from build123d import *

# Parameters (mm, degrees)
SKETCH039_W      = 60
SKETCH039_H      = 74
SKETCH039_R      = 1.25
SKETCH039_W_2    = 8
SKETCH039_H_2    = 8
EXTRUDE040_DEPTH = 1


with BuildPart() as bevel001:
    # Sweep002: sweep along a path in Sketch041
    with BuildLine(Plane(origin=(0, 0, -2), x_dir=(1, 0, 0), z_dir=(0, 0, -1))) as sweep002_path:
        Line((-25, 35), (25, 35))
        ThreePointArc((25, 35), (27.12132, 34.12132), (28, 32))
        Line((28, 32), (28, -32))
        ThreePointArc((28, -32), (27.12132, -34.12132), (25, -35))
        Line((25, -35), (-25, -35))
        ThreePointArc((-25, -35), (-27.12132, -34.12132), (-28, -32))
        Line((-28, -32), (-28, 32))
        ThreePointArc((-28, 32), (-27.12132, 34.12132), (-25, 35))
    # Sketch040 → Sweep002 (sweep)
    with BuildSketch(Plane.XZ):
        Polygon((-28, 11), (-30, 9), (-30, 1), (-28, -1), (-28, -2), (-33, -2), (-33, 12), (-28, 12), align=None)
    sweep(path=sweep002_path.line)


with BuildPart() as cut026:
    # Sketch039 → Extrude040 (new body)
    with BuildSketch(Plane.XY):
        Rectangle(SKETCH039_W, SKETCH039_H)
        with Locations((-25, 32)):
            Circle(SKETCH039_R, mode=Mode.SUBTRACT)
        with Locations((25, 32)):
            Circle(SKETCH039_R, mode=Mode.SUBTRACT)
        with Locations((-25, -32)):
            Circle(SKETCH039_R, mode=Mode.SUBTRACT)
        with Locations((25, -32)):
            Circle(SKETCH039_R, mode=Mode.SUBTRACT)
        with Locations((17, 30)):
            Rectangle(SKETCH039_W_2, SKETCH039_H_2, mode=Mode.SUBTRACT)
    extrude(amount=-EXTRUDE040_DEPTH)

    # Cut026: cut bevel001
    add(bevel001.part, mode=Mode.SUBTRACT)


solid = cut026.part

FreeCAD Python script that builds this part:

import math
import FreeCAD as App
import Part
import Sketcher


def add_polygon(sketch, points):
    """Adds a closed chain of lines whose ends are joined by coincident constraints."""
    first, n = sketch.GeometryCount, len(points)
    for a, b in zip(points, points[1:] + points[:1]):
        sketch.addGeometry(Part.LineSegment(App.Vector(*a, 0), App.Vector(*b, 0)), False)
    for i in range(n):
        sketch.addConstraint(Sketcher.Constraint("Coincident", first + i, 2, first + (i + 1) % n, 1))

doc = App.newDocument("Part")
params = doc.addObject("Spreadsheet::Sheet", "Params")
for row, (alias, value) in enumerate([
    ("sketch1_width", "5 mm"),
    ("sketch1_height", "1 mm"),
    ("sketch1_height2", "14 mm"),
    ("sketch1_height3", "8 mm"),
    ("sketch2_radius", "3.000001 mm"),
    ("sketch2_width", "50 mm"),
    ("sketch2_height", "64 mm"),
    ("sketch3_diameter", "2.5 mm"),
    ("sketch3_width", "60 mm"),
    ("sketch3_width2", "8 mm"),
    ("sketch3_height", "74 mm"),
    ("pad1_length", "1 mm"),
], start=1):
    params.set(f"A{row}", alias)
    params.set(f"B{row}", "=" + value)
    params.setAlias(f"B{row}", alias)

body = doc.addObject("PartDesign::Body", "Body")

# Sketch on XZ plane
sketch1 = doc.addObject("Sketcher::SketchObject", "Sketch")
body.addObject(sketch1)
sketch1.AttachmentSupport = (doc.XZ_Plane, [""])
sketch1.MapMode = "FlatFace"
add_polygon(sketch1, [(-30, 9), (-28, 11), (-28, 12), (-33, 12), (-33, -2), (-28, -2), (-28, -1), (-30, 1)])  # lines 0-7
sketch1.addConstraint(Sketcher.Constraint("Vertical", 1))
sketch1.addConstraint(Sketcher.Constraint("Horizontal", 2))
sketch1.addConstraint(Sketcher.Constraint("Vertical", 3))
sketch1.addConstraint(Sketcher.Constraint("Horizontal", 4))
sketch1.addConstraint(Sketcher.Constraint("Vertical", 5))
sketch1.addConstraint(Sketcher.Constraint("Vertical", 7))
sketch1.addConstraint(Sketcher.Constraint("Perpendicular", 0, 6))
sketch1.addConstraint(Sketcher.Constraint("Vertical", 1, 2, 4, 2))
sketch1.addConstraint(Sketcher.Constraint("Equal", 1, 5))
sketch1.addConstraint(Sketcher.Constraint("Equal", 0, 6))
sketch1.addConstraint(Sketcher.Constraint("DistanceX", 2, 2, 2, 1, 5.0))
sketch1.addConstraint(Sketcher.Constraint("DistanceY", 1, 1, 1, 2, 1.0))
sketch1.addConstraint(Sketcher.Constraint("DistanceY", 3, 2, 3, 1, 14.0))
sketch1.addConstraint(Sketcher.Constraint("DistanceY", 7, 1, 7, 2, 8.0))
sketch1.addConstraint(Sketcher.Constraint("DistanceX", 0, 2, -1, 1, 28.0))
sketch1.addConstraint(Sketcher.Constraint("DistanceY", -1, 1, 0, 2, 11.0))
sketch1.setExpression("Constraints[18]", "Params.sketch1_width")
sketch1.setExpression("Constraints[19]", "Params.sketch1_height")
sketch1.setExpression("Constraints[20]", "Params.sketch1_height2")
sketch1.setExpression("Constraints[21]", "Params.sketch1_height3")

# Sketch on XY plane
sketch2 = doc.addObject("Sketcher::SketchObject", "Sketch001")
body.addObject(sketch2)
sketch2.AttachmentSupport = (doc.XY_Plane, [""])
sketch2.MapMode = "FlatFace"
sketch2.AttachmentOffset = App.Placement(App.Vector(0, 0, -2), App.Rotation())
sketch2.addGeometry(Part.LineSegment(App.Vector(-25, -35, 0), App.Vector(25, -35, 0)), False)
sketch2.addGeometry(Part.ArcOfCircle(Part.Circle(App.Vector(25, -32, 0), App.Vector(0, 0, 1), 3), math.radians(-90), math.radians(0)), False)
sketch2.addGeometry(Part.LineSegment(App.Vector(28, -32, 0), App.Vector(28, 32, 0)), False)
sketch2.addGeometry(Part.ArcOfCircle(Part.Circle(App.Vector(25, 32, 0), App.Vector(0, 0, 1), 3), math.radians(0), math.radians(90)), False)
sketch2.addGeometry(Part.LineSegment(App.Vector(25, 35, 0), App.Vector(-25, 35, 0)), False)
sketch2.addGeometry(Part.ArcOfCircle(Part.Circle(App.Vector(-25, 32, 0), App.Vector(0, 0, 1), 3), math.radians(90), math.radians(180)), False)
sketch2.addGeometry(Part.LineSegment(App.Vector(-28, 32, 0), App.Vector(-28, -32, 0)), False)
sketch2.addGeometry(Part.ArcOfCircle(Part.Circle(App.Vector(-25, -32, 0), App.Vector(0, 0, 1), 3), math.radians(-180), math.radians(-90)), False)
sketch2.addConstraint(Sketcher.Constraint("Tangent", 0, 2, 1, 1))
sketch2.addConstraint(Sketcher.Constraint("Tangent", 1, 2, 2, 1))
sketch2.addConstraint(Sketcher.Constraint("Tangent", 2, 2, 3, 1))
sketch2.addConstraint(Sketcher.Constraint("Tangent", 3, 2, 4, 1))
sketch2.addConstraint(Sketcher.Constraint("Tangent", 4, 2, 5, 1))
sketch2.addConstraint(Sketcher.Constraint("Tangent", 5, 2, 6, 1))
sketch2.addConstraint(Sketcher.Constraint("Tangent", 6, 2, 7, 1))
sketch2.addConstraint(Sketcher.Constraint("Tangent", 7, 2, 0, 1))
sketch2.addConstraint(Sketcher.Constraint("Horizontal", 0))
sketch2.addConstraint(Sketcher.Constraint("Vertical", 2))
sketch2.addConstraint(Sketcher.Constraint("Horizontal", 4))
sketch2.addConstraint(Sketcher.Constraint("Vertical", 6))
sketch2.addConstraint(Sketcher.Constraint("Equal", 1, 3))
sketch2.addConstraint(Sketcher.Constraint("Equal", 3, 5))
sketch2.addConstraint(Sketcher.Constraint("Equal", 5, 7))
sketch2.addConstraint(Sketcher.Constraint("Symmetric", 1, 3, 5, 3, -1, 1))
sketch2.addConstraint(Sketcher.Constraint("Radius", 1, 3.000001))
sketch2.addConstraint(Sketcher.Constraint("DistanceX", 0, 1, 0, 2, 50.0))
sketch2.addConstraint(Sketcher.Constraint("DistanceY", 2, 1, 2, 2, 64.0))
sketch2.setExpression("Constraints[16]", "Params.sketch2_radius")
sketch2.setExpression("Constraints[17]", "Params.sketch2_width")
sketch2.setExpression("Constraints[18]", "Params.sketch2_height")
doc.recompute()

additivepipe = doc.addObject("PartDesign::AdditivePipe", "AdditivePipe")
body.addObject(additivepipe)
additivepipe.Profile = sketch1
additivepipe.Spine = (sketch2, ["Edge1", "Edge2", "Edge3", "Edge4", "Edge5", "Edge6", "Edge7", "Edge8"])
body2 = doc.addObject("PartDesign::Body", "Body001")

# Sketch on XY plane
sketch3 = doc.addObject("Sketcher::SketchObject", "Sketch002")
body2.addObject(sketch3)
sketch3.AttachmentSupport = (doc.getObject("XY_Plane001"), [""])
sketch3.MapMode = "FlatFace"
add_polygon(sketch3, [(-30, 37), (-30, -37), (30, -37), (30, 37)])  # lines 0-3
sketch3.addGeometry(Part.Circle(App.Vector(-25, -32, 0), App.Vector(0, 0, 1), 1.2), False)  # 4
sketch3.addGeometry(Part.Circle(App.Vector(25, -32, 0), App.Vector(0, 0, 1), 1.2), False)  # 5
sketch3.addGeometry(Part.Circle(App.Vector(-25, 32, 0), App.Vector(0, 0, 1), 1.2), False)  # 6
add_polygon(sketch3, [(21, 26), (13, 26), (13, 34), (21, 34)])  # lines 7-10
sketch3.addGeometry(Part.Circle(App.Vector(25, 32, 0), App.Vector(0, 0, 1), 1.2), False)  # 11
sketch3.addConstraint(Sketcher.Constraint("Vertical", 0))
sketch3.addConstraint(Sketcher.Constraint("Horizontal", 1))
sketch3.addConstraint(Sketcher.Constraint("Vertical", 2))
sketch3.addConstraint(Sketcher.Constraint("Horizontal", 3))
sketch3.addConstraint(Sketcher.Constraint("Horizontal", 7))
sketch3.addConstraint(Sketcher.Constraint("Vertical", 8))
sketch3.addConstraint(Sketcher.Constraint("Horizontal", 9))
sketch3.addConstraint(Sketcher.Constraint("Vertical", 10))
sketch3.addConstraint(Sketcher.Constraint("Equal", 4, 5))
sketch3.addConstraint(Sketcher.Constraint("Equal", 5, 6))
sketch3.addConstraint(Sketcher.Constraint("Equal", 6, 11))
sketch3.addConstraint(Sketcher.Constraint("Symmetric", 5, 3, 6, 3, -1, 1))
sketch3.addConstraint(Sketcher.Constraint("Symmetric", 4, 3, 11, 3, -1, 1))
sketch3.addConstraint(Sketcher.Constraint("Symmetric", 0, 2, 2, 2, -1, 1))
sketch3.addConstraint(Sketcher.Constraint("Symmetric", 4, 3, 5, 3, -2))
sketch3.addConstraint(Sketcher.Constraint("Equal", 9, 8))
sketch3.addConstraint(Sketcher.Constraint("Diameter", 4, 2.5))
sketch3.addConstraint(Sketcher.Constraint("DistanceX", 1, 1, 1, 2, 60.0))
sketch3.addConstraint(Sketcher.Constraint("DistanceX", 7, 2, 7, 1, 8.0))
sketch3.addConstraint(Sketcher.Constraint("DistanceY", 0, 2, 0, 1, 74.0))
sketch3.addConstraint(Sketcher.Constraint("DistanceX", 4, 3, -1, 1, 25.0))
sketch3.addConstraint(Sketcher.Constraint("DistanceY", 4, 3, -1, 1, 32.0))
sketch3.addConstraint(Sketcher.Constraint("DistanceX", -1, 1, 7, 2, 13.0))
sketch3.addConstraint(Sketcher.Constraint("DistanceY", -1, 1, 7, 2, 26.0))
sketch3.setExpression("Constraints[24]", "Params.sketch3_diameter")
sketch3.setExpression("Constraints[25]", "Params.sketch3_width")
sketch3.setExpression("Constraints[26]", "Params.sketch3_width2")
sketch3.setExpression("Constraints[27]", "Params.sketch3_height")
pad1 = doc.addObject("PartDesign::Pad", "Pad")
body2.addObject(pad1)
pad1.Profile = sketch3
pad1.setExpression("Length", "Params.pad1_length")
pad1.Reversed = True
doc.recompute()

boolean = doc.addObject("PartDesign::Boolean", "Boolean")
body2.addObject(boolean)
boolean.Type = "Cut"
boolean.addObjects([body])

doc.recompute()
